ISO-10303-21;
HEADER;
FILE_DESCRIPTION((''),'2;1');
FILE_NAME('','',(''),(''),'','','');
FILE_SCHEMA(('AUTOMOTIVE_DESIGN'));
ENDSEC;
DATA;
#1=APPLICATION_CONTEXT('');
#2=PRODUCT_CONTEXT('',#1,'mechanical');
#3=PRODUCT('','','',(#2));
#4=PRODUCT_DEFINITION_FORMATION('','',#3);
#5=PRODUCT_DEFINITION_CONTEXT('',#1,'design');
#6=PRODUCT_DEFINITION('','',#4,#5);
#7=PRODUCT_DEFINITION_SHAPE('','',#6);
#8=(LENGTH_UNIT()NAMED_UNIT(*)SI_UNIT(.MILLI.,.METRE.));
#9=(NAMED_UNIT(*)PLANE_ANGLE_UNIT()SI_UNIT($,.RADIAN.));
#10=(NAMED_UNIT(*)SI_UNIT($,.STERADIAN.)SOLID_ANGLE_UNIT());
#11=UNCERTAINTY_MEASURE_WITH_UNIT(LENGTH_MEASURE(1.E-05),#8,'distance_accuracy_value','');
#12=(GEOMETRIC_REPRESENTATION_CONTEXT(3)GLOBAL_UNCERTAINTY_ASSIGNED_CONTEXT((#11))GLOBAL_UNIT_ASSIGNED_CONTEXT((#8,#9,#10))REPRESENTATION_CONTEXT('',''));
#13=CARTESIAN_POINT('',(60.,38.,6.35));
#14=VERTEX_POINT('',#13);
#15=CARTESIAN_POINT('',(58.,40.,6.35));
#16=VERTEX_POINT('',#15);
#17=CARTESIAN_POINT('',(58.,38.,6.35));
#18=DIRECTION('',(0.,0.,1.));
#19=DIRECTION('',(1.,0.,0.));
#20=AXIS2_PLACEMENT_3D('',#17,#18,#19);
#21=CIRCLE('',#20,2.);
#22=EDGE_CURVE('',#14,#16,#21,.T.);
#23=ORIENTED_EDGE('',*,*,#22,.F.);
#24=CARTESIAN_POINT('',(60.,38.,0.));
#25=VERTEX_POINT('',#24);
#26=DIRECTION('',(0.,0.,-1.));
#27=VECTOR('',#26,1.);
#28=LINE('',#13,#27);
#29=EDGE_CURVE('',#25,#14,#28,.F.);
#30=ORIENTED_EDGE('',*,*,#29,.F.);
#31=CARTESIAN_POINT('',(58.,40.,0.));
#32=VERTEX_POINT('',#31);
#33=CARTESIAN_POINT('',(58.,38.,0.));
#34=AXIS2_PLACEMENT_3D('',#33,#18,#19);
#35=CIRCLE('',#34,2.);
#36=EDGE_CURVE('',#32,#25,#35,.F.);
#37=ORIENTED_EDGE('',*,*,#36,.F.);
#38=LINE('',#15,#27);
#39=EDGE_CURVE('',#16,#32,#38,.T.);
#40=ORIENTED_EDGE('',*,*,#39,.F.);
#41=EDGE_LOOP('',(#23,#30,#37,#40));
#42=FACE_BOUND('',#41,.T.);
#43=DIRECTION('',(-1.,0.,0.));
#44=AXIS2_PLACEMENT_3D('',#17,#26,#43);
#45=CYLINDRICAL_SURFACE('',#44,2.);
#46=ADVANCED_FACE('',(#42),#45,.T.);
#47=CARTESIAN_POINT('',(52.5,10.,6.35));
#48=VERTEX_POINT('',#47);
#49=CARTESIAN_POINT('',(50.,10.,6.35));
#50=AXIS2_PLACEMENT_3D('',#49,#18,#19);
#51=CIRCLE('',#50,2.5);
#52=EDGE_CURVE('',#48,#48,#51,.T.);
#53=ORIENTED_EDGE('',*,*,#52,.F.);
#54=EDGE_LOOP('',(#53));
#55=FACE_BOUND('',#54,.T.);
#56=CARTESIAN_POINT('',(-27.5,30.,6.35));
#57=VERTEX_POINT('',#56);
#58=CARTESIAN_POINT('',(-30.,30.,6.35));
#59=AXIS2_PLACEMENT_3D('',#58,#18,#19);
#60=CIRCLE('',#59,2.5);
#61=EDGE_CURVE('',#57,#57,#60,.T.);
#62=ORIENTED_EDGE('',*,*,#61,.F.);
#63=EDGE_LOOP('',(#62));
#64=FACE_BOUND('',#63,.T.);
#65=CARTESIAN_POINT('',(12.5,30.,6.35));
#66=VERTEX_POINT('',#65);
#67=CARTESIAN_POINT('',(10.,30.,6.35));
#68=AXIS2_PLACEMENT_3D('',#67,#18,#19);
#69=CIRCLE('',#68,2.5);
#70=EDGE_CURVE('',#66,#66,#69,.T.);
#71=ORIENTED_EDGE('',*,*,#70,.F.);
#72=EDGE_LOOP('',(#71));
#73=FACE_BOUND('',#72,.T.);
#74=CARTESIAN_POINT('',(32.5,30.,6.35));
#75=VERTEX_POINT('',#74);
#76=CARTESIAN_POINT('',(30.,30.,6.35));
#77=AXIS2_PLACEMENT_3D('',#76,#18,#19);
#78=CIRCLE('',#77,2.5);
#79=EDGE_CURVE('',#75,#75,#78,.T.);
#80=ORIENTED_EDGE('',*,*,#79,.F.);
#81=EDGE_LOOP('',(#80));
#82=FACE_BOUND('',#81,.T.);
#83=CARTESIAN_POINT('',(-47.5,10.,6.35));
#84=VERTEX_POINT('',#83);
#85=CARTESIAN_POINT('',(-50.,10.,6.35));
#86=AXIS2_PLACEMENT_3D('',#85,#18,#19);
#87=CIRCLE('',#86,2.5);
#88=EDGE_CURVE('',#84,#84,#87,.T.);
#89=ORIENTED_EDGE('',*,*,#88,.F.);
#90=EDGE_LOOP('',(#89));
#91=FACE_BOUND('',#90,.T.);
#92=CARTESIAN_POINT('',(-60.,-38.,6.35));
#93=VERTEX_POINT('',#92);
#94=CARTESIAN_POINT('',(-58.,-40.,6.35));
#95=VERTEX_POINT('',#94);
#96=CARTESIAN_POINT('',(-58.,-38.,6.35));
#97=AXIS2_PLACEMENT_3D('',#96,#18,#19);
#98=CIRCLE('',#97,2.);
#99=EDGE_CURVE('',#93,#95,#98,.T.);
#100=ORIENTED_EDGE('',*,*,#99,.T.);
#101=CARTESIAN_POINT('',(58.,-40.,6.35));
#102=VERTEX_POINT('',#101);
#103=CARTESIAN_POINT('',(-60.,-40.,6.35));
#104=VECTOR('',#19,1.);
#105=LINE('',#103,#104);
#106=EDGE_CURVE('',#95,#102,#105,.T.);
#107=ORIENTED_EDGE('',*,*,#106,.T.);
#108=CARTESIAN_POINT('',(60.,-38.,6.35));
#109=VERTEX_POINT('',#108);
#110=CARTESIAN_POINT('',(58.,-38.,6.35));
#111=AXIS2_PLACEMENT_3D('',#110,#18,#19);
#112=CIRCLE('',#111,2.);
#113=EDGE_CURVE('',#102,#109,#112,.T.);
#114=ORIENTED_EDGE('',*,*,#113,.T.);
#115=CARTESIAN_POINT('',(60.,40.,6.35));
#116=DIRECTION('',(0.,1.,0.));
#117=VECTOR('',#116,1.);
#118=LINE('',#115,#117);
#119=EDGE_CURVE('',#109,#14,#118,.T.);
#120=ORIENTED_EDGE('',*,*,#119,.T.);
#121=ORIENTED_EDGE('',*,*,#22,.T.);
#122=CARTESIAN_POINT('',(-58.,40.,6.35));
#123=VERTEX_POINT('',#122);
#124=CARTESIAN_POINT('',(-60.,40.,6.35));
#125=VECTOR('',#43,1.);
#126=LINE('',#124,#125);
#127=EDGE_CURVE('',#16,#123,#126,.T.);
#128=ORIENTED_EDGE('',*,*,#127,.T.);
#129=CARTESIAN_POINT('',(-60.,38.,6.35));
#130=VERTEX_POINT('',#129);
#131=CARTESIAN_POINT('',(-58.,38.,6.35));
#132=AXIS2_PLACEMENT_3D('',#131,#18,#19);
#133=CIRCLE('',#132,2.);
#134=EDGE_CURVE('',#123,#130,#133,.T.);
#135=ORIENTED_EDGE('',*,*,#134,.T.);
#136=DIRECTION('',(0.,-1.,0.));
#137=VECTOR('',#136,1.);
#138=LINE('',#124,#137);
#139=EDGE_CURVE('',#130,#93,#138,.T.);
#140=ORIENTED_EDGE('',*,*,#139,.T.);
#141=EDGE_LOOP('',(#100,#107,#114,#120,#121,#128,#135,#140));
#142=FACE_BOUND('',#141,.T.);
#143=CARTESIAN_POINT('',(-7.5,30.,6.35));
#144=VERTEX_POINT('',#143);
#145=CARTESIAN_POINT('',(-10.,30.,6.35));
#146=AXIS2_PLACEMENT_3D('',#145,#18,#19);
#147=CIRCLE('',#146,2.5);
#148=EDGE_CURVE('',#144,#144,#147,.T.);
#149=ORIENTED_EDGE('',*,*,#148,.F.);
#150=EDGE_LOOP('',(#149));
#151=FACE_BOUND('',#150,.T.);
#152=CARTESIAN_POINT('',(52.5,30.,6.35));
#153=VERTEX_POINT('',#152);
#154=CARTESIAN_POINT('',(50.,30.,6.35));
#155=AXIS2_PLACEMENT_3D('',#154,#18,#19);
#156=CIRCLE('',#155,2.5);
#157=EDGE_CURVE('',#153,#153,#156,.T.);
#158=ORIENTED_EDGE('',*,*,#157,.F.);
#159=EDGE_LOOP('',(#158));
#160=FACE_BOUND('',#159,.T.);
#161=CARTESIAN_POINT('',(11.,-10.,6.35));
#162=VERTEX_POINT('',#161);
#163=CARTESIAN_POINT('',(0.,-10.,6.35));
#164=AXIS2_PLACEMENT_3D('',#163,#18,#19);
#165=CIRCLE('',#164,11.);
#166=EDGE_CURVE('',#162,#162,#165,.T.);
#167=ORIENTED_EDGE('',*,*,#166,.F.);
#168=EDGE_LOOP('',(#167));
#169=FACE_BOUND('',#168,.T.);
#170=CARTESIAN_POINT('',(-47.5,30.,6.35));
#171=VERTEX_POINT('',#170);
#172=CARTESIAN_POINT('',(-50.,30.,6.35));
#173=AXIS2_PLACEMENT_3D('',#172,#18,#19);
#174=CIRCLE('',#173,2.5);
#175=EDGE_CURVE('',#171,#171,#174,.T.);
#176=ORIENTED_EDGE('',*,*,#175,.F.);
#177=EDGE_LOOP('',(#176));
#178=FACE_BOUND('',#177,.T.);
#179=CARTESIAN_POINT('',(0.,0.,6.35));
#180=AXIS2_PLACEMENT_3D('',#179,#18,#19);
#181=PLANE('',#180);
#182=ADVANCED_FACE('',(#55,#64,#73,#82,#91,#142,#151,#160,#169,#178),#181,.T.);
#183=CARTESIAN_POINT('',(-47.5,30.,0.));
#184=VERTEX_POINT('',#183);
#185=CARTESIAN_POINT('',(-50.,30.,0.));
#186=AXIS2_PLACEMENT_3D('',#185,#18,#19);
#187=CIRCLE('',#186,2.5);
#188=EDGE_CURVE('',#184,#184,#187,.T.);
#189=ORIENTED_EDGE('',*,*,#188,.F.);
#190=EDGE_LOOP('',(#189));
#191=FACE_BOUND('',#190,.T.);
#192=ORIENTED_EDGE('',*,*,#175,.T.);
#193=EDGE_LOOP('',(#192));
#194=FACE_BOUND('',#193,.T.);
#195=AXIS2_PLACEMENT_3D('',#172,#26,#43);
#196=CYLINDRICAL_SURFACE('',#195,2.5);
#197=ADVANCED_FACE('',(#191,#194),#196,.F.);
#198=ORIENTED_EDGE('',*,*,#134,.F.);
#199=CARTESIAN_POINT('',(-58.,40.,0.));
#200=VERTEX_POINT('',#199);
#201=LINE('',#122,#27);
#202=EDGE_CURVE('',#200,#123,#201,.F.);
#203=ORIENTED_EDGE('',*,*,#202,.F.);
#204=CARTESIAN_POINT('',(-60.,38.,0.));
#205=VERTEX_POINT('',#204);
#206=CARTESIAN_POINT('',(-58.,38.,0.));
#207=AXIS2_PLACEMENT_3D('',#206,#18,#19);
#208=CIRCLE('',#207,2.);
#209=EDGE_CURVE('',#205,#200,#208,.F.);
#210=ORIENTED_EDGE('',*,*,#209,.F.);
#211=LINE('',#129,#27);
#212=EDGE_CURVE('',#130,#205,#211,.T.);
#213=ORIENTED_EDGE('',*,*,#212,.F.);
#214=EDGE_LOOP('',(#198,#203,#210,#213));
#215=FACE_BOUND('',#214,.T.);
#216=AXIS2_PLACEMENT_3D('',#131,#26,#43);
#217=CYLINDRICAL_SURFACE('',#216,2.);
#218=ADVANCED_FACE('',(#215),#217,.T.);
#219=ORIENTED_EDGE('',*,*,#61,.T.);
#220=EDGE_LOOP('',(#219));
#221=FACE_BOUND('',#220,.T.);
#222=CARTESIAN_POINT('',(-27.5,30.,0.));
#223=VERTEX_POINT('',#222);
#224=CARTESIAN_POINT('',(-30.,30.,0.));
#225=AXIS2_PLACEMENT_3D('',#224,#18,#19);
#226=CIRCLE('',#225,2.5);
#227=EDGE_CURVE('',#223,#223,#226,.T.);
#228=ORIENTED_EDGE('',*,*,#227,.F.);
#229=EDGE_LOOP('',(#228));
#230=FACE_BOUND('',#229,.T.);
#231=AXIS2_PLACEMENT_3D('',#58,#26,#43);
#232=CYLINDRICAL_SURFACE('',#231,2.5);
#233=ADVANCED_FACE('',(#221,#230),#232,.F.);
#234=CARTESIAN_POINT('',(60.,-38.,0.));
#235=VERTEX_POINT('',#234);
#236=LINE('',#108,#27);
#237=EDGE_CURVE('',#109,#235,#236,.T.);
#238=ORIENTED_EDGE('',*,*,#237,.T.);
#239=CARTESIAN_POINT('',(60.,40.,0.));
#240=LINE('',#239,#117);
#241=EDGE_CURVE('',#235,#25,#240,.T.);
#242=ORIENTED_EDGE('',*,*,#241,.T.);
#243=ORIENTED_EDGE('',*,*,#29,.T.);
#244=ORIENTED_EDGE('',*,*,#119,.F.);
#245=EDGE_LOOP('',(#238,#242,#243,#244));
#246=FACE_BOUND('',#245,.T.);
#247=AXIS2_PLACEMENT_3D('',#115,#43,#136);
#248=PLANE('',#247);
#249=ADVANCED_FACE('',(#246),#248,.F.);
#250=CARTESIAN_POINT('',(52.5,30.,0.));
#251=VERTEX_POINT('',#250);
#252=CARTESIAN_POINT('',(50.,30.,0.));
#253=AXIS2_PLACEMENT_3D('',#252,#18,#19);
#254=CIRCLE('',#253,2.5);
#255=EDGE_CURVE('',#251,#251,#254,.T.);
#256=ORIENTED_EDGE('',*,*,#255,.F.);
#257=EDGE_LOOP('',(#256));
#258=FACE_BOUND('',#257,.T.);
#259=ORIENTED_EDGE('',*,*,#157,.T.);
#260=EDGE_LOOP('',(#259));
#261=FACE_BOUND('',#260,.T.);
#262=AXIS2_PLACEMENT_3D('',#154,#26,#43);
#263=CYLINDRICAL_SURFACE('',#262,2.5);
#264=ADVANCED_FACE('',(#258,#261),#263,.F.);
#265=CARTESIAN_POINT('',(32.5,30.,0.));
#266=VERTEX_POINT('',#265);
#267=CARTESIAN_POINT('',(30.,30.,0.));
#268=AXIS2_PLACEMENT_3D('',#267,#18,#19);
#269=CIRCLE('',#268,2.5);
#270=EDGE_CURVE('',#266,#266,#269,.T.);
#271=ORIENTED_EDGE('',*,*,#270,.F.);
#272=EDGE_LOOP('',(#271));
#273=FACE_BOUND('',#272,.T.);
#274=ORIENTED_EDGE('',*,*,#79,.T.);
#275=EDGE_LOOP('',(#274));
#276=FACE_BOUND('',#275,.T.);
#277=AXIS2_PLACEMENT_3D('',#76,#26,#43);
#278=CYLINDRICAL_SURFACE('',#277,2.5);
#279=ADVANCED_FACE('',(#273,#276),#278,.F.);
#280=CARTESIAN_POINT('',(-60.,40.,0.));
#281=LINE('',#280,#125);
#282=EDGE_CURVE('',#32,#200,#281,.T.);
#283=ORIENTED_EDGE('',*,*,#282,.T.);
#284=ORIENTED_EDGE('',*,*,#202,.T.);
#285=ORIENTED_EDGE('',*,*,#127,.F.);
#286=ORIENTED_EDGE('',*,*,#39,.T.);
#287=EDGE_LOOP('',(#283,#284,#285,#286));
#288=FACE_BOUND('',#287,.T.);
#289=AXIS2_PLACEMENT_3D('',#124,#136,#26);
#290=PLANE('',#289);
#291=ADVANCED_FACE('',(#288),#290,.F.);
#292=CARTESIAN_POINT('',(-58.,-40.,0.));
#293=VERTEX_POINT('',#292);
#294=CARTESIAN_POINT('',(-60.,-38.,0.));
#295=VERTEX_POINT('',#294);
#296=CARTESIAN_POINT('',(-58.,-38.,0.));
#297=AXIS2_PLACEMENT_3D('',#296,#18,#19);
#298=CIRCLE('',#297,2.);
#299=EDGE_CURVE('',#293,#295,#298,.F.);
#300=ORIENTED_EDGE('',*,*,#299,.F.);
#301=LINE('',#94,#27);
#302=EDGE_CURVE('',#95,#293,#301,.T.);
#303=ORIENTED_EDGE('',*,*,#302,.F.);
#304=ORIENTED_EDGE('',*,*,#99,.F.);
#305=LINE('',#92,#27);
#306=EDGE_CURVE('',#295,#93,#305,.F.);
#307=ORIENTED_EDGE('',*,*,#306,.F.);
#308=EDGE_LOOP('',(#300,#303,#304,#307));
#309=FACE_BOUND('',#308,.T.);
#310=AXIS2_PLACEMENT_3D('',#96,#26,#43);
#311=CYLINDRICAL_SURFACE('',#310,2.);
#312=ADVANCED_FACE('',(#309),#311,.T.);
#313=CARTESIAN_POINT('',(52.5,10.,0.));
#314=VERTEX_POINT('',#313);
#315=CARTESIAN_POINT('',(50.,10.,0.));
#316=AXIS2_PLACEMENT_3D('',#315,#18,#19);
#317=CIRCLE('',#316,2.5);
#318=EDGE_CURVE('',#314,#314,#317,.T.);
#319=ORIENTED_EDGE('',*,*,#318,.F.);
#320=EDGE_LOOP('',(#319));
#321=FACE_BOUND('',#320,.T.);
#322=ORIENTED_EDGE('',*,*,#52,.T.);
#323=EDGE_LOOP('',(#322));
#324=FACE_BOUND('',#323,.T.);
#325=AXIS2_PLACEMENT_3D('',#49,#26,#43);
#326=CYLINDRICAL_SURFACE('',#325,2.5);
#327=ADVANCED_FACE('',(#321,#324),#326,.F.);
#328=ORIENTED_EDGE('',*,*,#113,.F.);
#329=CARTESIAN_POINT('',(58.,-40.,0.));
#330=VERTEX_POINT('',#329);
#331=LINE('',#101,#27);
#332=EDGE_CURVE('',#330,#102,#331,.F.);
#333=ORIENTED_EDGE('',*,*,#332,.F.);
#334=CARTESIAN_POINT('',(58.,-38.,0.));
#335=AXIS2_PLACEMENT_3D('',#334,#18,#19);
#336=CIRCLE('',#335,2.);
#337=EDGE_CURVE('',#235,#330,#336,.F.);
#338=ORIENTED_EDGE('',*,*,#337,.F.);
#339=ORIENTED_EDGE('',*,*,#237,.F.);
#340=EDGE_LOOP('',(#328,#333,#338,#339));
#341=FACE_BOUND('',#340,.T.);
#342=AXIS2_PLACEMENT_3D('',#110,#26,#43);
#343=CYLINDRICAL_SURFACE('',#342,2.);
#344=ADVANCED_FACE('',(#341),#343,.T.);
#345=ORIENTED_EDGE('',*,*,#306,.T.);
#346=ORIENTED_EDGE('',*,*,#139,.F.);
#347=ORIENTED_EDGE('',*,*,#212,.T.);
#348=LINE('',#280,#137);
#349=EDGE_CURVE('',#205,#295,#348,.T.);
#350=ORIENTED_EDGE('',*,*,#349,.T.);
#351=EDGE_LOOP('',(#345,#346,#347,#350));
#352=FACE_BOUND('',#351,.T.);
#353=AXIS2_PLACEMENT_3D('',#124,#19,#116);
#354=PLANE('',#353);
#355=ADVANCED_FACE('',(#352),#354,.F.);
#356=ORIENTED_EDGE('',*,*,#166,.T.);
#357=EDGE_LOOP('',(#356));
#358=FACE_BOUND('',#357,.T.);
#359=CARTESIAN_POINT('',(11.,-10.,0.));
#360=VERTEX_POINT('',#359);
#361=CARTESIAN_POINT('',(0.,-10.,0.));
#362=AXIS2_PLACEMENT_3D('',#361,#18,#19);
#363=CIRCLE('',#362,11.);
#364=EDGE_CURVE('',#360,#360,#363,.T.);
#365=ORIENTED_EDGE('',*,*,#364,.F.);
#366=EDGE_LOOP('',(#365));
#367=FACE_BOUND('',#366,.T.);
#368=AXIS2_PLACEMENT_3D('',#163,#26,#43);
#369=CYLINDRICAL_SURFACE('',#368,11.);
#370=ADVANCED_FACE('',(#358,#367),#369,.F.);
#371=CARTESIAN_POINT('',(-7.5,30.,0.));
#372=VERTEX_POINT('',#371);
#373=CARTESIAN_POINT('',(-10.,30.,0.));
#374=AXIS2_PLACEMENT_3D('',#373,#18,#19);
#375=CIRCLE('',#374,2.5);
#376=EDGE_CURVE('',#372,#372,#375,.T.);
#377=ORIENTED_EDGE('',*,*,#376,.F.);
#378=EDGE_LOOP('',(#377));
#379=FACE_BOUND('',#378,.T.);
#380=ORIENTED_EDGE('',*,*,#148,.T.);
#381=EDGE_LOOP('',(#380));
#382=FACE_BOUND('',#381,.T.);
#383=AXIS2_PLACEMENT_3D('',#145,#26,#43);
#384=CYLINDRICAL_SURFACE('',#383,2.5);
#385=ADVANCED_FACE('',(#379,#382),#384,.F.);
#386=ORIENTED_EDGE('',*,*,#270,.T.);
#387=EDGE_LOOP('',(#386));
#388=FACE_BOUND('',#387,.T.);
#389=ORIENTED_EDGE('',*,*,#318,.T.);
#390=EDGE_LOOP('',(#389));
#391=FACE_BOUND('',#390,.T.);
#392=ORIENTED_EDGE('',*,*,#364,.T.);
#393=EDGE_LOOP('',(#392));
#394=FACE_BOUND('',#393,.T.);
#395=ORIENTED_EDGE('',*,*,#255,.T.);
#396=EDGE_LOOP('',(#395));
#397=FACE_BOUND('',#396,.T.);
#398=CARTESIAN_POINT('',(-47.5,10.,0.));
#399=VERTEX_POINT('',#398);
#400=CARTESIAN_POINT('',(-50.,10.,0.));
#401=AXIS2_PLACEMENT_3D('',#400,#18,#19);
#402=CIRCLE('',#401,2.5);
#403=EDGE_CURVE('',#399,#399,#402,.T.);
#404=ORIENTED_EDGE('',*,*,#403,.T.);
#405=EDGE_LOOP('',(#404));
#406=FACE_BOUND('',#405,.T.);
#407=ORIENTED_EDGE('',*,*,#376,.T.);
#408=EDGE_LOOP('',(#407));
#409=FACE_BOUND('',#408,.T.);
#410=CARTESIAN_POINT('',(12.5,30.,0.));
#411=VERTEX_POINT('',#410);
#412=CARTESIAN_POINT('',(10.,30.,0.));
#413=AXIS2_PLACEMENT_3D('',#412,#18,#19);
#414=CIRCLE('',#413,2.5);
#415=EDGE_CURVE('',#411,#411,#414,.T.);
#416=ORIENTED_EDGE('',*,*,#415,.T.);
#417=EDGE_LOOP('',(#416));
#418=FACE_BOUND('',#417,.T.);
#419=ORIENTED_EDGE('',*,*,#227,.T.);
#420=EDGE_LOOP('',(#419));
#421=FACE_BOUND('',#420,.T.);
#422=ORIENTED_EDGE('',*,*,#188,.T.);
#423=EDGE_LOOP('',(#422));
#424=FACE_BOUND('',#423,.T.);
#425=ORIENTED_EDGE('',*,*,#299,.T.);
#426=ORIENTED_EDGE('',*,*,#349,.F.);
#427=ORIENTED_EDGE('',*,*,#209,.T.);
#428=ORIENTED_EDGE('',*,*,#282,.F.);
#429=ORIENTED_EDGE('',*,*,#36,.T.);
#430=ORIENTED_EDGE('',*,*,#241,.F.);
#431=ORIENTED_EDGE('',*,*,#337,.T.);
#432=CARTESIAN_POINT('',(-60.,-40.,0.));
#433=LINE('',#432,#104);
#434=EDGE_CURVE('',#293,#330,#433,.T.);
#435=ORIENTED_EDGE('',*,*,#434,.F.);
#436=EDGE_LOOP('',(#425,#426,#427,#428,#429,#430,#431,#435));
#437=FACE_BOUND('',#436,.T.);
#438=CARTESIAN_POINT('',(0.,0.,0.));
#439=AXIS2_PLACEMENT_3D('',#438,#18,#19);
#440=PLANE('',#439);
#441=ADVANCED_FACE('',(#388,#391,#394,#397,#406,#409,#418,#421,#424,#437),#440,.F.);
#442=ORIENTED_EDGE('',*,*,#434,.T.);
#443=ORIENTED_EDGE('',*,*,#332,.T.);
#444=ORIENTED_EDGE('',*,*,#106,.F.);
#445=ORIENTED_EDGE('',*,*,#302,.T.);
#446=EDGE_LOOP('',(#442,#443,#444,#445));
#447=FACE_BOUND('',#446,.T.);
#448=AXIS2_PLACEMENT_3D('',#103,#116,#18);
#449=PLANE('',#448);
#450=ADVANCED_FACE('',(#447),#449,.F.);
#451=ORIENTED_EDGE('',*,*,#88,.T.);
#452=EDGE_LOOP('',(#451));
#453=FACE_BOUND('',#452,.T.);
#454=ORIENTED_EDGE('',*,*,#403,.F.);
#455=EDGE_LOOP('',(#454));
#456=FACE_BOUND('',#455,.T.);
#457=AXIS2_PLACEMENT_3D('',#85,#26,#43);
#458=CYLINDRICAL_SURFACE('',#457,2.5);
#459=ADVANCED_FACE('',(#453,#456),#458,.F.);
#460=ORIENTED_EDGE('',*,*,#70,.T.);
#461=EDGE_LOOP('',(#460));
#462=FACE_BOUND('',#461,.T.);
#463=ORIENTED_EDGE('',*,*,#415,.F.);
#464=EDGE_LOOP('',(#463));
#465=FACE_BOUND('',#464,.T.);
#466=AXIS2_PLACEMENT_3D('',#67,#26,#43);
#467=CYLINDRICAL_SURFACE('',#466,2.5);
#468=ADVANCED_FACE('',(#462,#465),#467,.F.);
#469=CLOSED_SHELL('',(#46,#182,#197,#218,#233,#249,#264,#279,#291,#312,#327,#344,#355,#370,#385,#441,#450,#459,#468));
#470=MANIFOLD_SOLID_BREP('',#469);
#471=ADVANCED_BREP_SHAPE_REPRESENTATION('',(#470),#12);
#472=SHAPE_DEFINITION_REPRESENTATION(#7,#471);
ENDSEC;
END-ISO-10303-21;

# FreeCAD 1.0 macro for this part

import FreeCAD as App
import Part
import Sketcher

V = App.Vector


def edges_at(feature, points):
    """Names of the edges that pass closest to the given points."""
    edges = feature.Shape.Edges
    near = lambda p: min(range(len(edges)), key=lambda i: edges[i].distToShape(Part.Vertex(*p))[0])
    return sorted({f"Edge{near(p) + 1}" for p in points})


def add_polygon(sketch, points):
    """Adds a closed chain of lines whose ends are joined by coincident constraints."""
    first, n = sketch.GeometryCount, len(points)
    for a, b in zip(points, points[1:] + points[:1]):
        sketch.addGeometry(Part.LineSegment(App.Vector(*a, 0), App.Vector(*b, 0)), False)
    for i in range(n):
        sketch.addConstraint(Sketcher.Constraint("Coincident", first + i, 2, first + (i + 1) % n, 1))

doc = App.newDocument("Part")
body = doc.addObject("PartDesign::Body", "Body")

sketch1 = doc.addObject("Sketcher::SketchObject", "Sketch")
body.addObject(sketch1)
sketch1.AttachmentSupport = (doc.XY_Plane, [""])
sketch1.MapMode = "FlatFace"
add_polygon(sketch1, [(-60, 40), (-60, -40), (60, -40), (60, 40)])
sketch1.addGeometry(Part.Circle(V(0, -10, 0), V(0, 0, 1), 11), False)
sketch1.addGeometry(Part.Circle(V(-50, 10, 0), V(0, 0, 1), 2.5), False)
sketch1.addGeometry(Part.Circle(V(-50, 30, 0), V(0, 0, 1), 2.5), False)
sketch1.addGeometry(Part.Circle(V(-30, 30, 0), V(0, 0, 1), 2.5), False)
sketch1.addGeometry(Part.Circle(V(-10, 30, 0), V(0, 0, 1), 2.5), False)
sketch1.addGeometry(Part.Circle(V(50, 10, 0), V(0, 0, 1), 2.5), False)
sketch1.addGeometry(Part.Circle(V(10, 30, 0), V(0, 0, 1), 2.5), False)
sketch1.addGeometry(Part.Circle(V(30, 30, 0), V(0, 0, 1), 2.5), False)
sketch1.addGeometry(Part.Circle(V(50, 30, 0), V(0, 0, 1), 2.5), False)
sketch1.addConstraint([
    Sketcher.Constraint("Vertical", 0),
    Sketcher.Constraint("Horizontal", 1),
    Sketcher.Constraint("Vertical", 2),
    Sketcher.Constraint("Horizontal", 3),
    Sketcher.Constraint("Equal", 5, 6),
    Sketcher.Constraint("Equal", 6, 7),
    Sketcher.Constraint("Equal", 7, 8),
    Sketcher.Constraint("Equal", 8, 9),
    Sketcher.Constraint("Equal", 9, 10),
    Sketcher.Constraint("Equal", 10, 11),
    Sketcher.Constraint("Equal", 11, 12),
    Sketcher.Constraint("Symmetric", 0, 2, 2, 2, -1, 1),
    Sketcher.Constraint("Symmetric", 5, 3, 9, 3, -2),
    Sketcher.Constraint("Symmetric", 8, 3, 10, 3, -2),
    Sketcher.Constraint("Symmetric", 7, 3, 11, 3, -2),
    Sketcher.Constraint("Symmetric", 6, 3, 12, 3, -2),
    Sketcher.Constraint("PointOnObject", 4, 3, -2),
    Sketcher.Constraint("Horizontal", 6, 3, 7, 3),
    Sketcher.Constraint("Horizontal", 7, 3, 8, 3),
    Sketcher.Constraint("Vertical", 5, 3, 6, 3),
    Sketcher.Constraint("Diameter", 4, 22.0),
    Sketcher.Constraint("Diameter", 5, 5.0),
    Sketcher.Constraint("DistanceX", 1, 1, 1, 2, 120.0),
    Sketcher.Constraint("DistanceY", 0, 2, 0, 1, 80.0),
    Sketcher.Constraint("DistanceY", 4, 3, -1, 1, 10.0),
    Sketcher.Constraint("DistanceX", 5, 3, -1, 1, 50.0),
    Sketcher.Constraint("DistanceY", -1, 1, 5, 3, 10.0),
    Sketcher.Constraint("DistanceY", -1, 1, 6, 3, 30.0),
    Sketcher.Constraint("DistanceX", 7, 3, -1, 1, 30.0),
    Sketcher.Constraint("DistanceX", 8, 3, -1, 1, 10.0),
])
pad1 = doc.addObject("PartDesign::Pad", "Pad")
body.addObject(pad1)
pad1.Profile = sketch1
pad1.Length = 6.35
doc.recompute()

fillet = doc.addObject("PartDesign::Fillet", "Fillet")
body.addObject(fillet)
fillet.Base = (pad1, edges_at(pad1, [
    (60, -40, 3.175),
    (-60, -40, 3.175),
    (-60, 40, 3.175),
    (60, 40, 3.175),
]))
fillet.Radius = 2

doc.recompute()
